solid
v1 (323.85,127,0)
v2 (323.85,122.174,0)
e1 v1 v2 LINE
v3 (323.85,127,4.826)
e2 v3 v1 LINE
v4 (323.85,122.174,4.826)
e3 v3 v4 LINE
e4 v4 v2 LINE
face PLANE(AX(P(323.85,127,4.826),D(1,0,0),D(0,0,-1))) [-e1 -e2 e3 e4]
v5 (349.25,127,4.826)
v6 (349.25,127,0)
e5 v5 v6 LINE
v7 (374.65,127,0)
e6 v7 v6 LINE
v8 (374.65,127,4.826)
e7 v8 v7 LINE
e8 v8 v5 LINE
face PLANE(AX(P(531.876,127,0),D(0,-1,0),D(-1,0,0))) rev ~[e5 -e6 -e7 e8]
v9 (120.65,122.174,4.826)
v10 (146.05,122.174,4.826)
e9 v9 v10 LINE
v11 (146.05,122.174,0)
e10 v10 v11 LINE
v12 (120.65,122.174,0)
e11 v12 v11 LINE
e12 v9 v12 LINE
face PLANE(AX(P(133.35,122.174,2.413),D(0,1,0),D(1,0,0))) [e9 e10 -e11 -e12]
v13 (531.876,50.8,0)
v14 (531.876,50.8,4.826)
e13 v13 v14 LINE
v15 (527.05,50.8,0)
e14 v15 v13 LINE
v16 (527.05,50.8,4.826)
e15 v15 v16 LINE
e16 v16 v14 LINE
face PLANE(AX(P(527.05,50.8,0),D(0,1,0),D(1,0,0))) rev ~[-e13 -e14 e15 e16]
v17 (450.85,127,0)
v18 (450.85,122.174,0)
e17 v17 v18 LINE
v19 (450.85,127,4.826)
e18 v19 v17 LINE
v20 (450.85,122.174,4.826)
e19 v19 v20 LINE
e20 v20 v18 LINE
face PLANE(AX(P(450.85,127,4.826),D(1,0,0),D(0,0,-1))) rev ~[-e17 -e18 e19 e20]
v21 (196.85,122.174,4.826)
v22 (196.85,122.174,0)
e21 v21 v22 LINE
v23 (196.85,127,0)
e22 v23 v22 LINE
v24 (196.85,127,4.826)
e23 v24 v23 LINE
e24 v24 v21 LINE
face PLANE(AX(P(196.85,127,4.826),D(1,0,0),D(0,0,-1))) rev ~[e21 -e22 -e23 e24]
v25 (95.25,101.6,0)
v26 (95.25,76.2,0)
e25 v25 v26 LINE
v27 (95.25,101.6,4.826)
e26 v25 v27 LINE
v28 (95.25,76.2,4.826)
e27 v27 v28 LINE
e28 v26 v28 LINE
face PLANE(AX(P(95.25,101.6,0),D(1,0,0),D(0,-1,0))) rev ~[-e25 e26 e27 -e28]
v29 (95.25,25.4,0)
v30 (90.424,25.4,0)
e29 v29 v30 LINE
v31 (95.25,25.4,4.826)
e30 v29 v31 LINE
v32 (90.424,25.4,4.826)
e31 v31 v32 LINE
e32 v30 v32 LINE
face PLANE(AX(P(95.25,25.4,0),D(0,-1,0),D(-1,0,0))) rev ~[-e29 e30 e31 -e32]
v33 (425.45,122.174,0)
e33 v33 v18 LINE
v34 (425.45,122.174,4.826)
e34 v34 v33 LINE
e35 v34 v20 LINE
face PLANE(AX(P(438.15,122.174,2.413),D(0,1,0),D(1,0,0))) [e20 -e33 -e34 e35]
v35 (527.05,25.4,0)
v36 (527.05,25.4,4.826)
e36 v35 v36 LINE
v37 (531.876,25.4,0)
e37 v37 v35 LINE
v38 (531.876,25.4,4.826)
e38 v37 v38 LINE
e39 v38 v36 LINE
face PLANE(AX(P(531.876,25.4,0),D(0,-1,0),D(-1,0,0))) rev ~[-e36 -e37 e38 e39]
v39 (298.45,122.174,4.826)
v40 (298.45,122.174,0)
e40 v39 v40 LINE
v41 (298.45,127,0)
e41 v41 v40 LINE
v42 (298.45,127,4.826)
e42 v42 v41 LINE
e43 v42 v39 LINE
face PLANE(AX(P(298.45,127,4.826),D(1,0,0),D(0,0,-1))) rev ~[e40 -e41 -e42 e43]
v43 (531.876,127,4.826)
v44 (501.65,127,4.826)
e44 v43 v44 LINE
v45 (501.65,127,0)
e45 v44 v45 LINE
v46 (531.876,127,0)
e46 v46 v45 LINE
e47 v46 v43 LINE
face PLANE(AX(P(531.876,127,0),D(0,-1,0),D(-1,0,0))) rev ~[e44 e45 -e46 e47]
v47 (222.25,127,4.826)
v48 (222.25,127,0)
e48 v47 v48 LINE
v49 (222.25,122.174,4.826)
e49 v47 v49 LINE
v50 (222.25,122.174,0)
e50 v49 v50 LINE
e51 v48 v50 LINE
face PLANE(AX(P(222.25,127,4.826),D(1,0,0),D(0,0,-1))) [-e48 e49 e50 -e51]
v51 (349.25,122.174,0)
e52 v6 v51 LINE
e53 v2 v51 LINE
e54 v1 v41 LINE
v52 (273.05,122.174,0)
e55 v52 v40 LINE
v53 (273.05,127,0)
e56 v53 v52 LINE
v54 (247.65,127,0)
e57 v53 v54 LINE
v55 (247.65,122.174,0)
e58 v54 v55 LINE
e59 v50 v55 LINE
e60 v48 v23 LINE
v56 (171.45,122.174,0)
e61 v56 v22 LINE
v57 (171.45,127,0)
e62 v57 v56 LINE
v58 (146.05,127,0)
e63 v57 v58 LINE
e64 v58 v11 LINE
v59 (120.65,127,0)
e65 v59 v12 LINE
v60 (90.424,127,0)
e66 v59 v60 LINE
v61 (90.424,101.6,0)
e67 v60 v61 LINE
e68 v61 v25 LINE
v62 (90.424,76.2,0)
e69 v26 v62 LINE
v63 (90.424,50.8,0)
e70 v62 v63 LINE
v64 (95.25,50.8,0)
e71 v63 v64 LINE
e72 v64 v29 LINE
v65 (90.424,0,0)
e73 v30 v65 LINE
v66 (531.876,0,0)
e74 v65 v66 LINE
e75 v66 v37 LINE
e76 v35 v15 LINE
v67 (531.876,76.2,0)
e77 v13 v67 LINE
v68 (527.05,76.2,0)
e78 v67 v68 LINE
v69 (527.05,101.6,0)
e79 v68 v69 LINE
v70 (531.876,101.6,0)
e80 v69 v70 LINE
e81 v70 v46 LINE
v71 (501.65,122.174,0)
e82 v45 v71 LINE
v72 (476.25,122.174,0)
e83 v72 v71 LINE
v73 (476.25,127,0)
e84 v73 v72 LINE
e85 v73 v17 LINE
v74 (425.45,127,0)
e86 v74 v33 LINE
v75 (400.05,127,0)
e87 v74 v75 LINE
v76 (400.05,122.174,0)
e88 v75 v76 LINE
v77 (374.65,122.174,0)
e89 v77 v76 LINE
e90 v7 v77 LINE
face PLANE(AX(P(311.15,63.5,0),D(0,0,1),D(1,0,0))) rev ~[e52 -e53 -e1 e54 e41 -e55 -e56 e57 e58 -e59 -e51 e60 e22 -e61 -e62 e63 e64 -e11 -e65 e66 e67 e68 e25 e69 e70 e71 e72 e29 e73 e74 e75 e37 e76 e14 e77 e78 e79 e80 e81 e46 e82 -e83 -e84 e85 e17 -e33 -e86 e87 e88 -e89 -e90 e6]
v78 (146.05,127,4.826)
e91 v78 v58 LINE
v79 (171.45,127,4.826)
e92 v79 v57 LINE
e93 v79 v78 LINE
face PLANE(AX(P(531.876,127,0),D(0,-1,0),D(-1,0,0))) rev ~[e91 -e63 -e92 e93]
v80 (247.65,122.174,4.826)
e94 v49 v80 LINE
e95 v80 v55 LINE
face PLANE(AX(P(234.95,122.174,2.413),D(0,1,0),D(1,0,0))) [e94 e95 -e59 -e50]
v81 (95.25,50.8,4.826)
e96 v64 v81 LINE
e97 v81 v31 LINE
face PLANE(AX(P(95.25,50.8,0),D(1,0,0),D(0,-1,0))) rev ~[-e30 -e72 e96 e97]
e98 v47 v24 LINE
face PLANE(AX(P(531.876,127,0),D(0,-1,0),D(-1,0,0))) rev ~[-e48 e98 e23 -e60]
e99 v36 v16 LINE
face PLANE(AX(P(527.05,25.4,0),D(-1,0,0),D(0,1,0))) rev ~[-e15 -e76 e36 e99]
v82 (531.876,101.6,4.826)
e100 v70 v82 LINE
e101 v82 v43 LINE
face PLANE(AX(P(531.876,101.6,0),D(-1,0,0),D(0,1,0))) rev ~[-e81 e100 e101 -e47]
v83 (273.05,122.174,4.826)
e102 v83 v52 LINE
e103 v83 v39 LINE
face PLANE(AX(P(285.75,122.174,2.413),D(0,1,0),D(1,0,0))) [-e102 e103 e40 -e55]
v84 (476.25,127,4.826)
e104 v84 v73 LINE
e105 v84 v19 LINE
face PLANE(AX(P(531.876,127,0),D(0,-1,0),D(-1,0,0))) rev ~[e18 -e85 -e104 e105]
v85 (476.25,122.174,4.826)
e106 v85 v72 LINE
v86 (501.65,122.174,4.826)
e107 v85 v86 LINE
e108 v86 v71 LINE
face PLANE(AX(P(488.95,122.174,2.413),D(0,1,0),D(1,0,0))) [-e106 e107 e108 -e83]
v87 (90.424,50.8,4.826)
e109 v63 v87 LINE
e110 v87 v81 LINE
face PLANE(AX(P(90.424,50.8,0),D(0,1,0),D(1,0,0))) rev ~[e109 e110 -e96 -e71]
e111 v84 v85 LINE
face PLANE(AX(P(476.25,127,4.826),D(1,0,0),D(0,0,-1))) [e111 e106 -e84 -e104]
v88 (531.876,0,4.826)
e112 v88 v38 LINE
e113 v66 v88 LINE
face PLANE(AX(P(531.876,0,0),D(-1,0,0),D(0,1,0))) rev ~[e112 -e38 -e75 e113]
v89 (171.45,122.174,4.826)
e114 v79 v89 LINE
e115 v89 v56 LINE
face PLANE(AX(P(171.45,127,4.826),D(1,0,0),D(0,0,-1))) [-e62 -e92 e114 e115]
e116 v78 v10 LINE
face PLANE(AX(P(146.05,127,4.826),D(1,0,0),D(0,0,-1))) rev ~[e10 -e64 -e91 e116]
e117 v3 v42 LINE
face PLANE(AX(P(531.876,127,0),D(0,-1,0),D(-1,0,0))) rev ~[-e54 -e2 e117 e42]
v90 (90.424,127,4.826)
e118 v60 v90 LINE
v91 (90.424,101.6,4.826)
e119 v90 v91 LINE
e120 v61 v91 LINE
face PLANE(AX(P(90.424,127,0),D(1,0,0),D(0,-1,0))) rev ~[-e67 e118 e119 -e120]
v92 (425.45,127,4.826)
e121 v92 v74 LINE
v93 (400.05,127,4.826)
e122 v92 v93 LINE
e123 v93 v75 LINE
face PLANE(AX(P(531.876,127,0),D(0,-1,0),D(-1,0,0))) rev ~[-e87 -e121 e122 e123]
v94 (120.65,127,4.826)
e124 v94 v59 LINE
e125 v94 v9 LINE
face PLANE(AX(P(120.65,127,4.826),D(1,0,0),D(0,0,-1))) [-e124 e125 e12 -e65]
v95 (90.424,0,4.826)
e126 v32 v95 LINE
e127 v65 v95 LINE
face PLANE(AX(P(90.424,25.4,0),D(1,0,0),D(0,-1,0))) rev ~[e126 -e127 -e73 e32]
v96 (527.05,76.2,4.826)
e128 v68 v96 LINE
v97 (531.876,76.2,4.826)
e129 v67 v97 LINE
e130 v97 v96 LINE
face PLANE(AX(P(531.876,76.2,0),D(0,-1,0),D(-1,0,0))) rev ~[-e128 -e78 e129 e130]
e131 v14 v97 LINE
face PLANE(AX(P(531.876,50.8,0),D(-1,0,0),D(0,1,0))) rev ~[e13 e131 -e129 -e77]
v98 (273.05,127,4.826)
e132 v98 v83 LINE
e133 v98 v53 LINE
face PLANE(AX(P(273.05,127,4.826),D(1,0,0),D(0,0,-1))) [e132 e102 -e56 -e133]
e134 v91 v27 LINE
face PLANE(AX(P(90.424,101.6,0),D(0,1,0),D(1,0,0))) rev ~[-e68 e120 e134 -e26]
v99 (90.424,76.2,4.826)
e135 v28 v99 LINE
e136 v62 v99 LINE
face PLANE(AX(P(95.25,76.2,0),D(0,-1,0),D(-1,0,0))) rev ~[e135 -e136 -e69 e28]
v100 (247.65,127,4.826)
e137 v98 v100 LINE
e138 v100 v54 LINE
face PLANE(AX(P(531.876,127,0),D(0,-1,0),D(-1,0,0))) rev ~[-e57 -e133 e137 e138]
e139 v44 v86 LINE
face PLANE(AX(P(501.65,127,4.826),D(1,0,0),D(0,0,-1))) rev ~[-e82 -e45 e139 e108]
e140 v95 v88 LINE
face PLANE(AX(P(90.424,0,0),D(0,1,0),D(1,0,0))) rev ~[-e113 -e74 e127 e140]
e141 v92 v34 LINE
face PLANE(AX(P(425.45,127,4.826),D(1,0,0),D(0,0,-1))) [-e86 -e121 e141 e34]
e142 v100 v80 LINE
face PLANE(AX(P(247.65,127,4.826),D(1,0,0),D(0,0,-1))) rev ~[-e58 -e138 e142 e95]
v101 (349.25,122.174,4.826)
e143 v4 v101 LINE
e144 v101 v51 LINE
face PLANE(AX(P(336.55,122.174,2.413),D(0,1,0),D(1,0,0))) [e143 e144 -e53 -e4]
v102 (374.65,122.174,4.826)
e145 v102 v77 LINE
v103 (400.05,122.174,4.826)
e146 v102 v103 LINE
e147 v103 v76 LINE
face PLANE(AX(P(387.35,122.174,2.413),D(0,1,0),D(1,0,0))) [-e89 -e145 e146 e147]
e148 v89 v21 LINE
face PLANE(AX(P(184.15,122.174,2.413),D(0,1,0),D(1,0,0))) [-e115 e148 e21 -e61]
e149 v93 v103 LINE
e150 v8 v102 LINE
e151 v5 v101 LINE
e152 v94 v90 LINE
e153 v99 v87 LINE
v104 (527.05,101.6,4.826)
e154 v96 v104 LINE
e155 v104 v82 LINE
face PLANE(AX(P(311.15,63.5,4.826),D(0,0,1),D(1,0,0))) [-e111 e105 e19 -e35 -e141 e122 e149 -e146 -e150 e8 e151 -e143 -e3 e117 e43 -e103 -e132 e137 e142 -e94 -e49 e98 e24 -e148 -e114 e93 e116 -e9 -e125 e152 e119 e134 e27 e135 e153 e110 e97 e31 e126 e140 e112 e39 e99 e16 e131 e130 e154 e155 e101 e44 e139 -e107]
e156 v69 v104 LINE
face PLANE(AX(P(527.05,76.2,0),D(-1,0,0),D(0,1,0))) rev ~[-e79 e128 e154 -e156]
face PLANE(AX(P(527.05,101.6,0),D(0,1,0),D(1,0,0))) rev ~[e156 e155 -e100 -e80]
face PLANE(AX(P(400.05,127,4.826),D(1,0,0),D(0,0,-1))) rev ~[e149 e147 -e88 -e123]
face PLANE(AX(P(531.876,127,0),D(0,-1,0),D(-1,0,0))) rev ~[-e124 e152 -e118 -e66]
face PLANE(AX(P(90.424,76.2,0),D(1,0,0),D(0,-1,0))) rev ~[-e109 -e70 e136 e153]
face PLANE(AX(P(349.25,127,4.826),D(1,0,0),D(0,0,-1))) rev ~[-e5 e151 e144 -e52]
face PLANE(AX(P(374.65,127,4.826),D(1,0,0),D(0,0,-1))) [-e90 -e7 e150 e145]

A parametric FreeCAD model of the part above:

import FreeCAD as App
import Part
import Sketcher

V = App.Vector
Q = App.Units.Quantity


def add_polygon(sketch, points):
    """Adds a closed chain of lines whose ends are joined by coincident constraints."""
    first, n = sketch.GeometryCount, len(points)
    for a, b in zip(points, points[1:] + points[:1]):
        sketch.addGeometry(Part.LineSegment(App.Vector(*a, 0), App.Vector(*b, 0)), False)
    for i in range(n):
        sketch.addConstraint(Sketcher.Constraint("Coincident", first + i, 2, first + (i + 1) % n, 1))

doc = App.newDocument("Part")
body = doc.addObject("PartDesign::Body", "Body")

sketch1 = body.newObject("Sketcher::SketchObject", "Sketch")
sketch1.AttachmentSupport = (doc.getObject("XY_Plane"), [""])
sketch1.MapMode = "FlatFace"
add_polygon(sketch1, [(95.2, 50.8), (95.2, 25.4), (90.4, 25.4), (90.4, 0), (531.9, 0), (531.9, 25.4), (527, 25.4), (527, 50.8), (531.9, 50.8), (531.9, 76.2), (527, 76.2), (527, 101.6), (531.9, 101.6), (531.9, 127), (90.4, 127), (90.4, 101.6), (95.2, 101.6), (95.2, 76.2), (90.4, 76.2), (90.4, 50.8)])
sketch1.addConstraint([
    Sketcher.Constraint("Vertical", 0),
    Sketcher.Constraint("Horizontal", 1),
    Sketcher.Constraint("Vertical", 2),
    Sketcher.Constraint("Horizontal", 3),
    Sketcher.Constraint("Vertical", 4),
    Sketcher.Constraint("Horizontal", 5),
    Sketcher.Constraint("Vertical", 6),
    Sketcher.Constraint("Horizontal", 7),
    Sketcher.Constraint("Vertical", 8),
    Sketcher.Constraint("Horizontal", 9),
    Sketcher.Constraint("Vertical", 10),
    Sketcher.Constraint("Horizontal", 11),
    Sketcher.Constraint("Vertical", 12),
    Sketcher.Constraint("Horizontal", 13),
    Sketcher.Constraint("Vertical", 14),
    Sketcher.Constraint("Horizontal", 15),
    Sketcher.Constraint("Vertical", 16),
    Sketcher.Constraint("Horizontal", 17),
    Sketcher.Constraint("Vertical", 18),
    Sketcher.Constraint("Horizontal", 19),
    Sketcher.Constraint("PointOnObject", 2, 2, -1),
    Sketcher.Constraint("Horizontal", 1, 2, 4, 2),
    Sketcher.Constraint("Horizontal", 11, 2, 14, 2),
    Sketcher.Constraint("Horizontal", 9, 2, 16, 2),
    Sketcher.Constraint("Horizontal", 7, 2, 18, 2),
    Sketcher.Constraint("Vertical", 4, 2, 7, 2),
    Sketcher.Constraint("Vertical", 6, 2, 9, 2),
    Sketcher.Constraint("Vertical", 8, 2, 11, 2),
    Sketcher.Constraint("Vertical", 2, 2, 13, 2),
    Sketcher.Constraint("Vertical", 0, 2, 15, 2),
    Sketcher.Constraint("Vertical", 14, 2, 17, 2),
    Sketcher.Constraint("Equal", 1, 5),
    Sketcher.Constraint("Equal", 0, 2),
    Sketcher.Constraint("Equal", 6, 8),
    Sketcher.Constraint("Equal", 8, 10),
    Sketcher.Constraint("Equal", 10, 12),
    Sketcher.Constraint("DistanceY", 0, 2, 0, 1, Q("1 in")),
    Sketcher.Constraint("DistanceX", 0, 2, 5, 2, Q("17 in")),
    Sketcher.Constraint("DistanceX", 1, 2, 1, 1, Q("0.19 in")),
    Sketcher.Constraint("DistanceX", -1, 1, 0, 2, Q("3.75 in")),
])
pad1 = body.newObject("PartDesign::Pad", "Pad")
pad1.Profile = sketch1
pad1.Length = Q("0.19 in")

sketch2 = body.newObject("Sketcher::SketchObject", "Sketch001")
sketch2.AttachmentSupport = (doc.getObject("XZ_Plane"), [""])
sketch2.MapMode = "FlatFace"
sketch2.AttachmentOffset = App.Placement(V(0, 0, -5 * 25.4), App.Rotation())
add_polygon(sketch2, [(120.7, 0), (120.7, 4.8), (146.1, 4.8), (146.1, 0)])
add_polygon(sketch2, [(171.4, 0), (171.4, 4.8), (196.8, 4.8), (196.8, 0)])
add_polygon(sketch2, [(222.2, 0), (222.2, 4.8), (247.7, 4.8), (247.7, 0)])
add_polygon(sketch2, [(273.1, 0), (273.1, 4.8), (298.4, 4.8), (298.4, 0)])
add_polygon(sketch2, [(323.9, 0), (323.9, 4.8), (349.2, 4.8), (349.2, 0)])
add_polygon(sketch2, [(374.6, 0), (374.6, 4.8), (400.1, 4.8), (400.1, 0)])
add_polygon(sketch2, [(425.4, 0), (425.4, 4.8), (450.9, 4.8), (450.9, 0)])
add_polygon(sketch2, [(476.2, 0), (476.2, 4.8), (501.6, 4.8), (501.6, 0)])
sketch2.addConstraint([
    Sketcher.Constraint("Vertical", 0),
    Sketcher.Constraint("Horizontal", 1),
    Sketcher.Constraint("Vertical", 2),
    Sketcher.Constraint("Horizontal", 3),
    Sketcher.Constraint("Vertical", 4),
    Sketcher.Constraint("Horizontal", 5),
    Sketcher.Constraint("Vertical", 6),
    Sketcher.Constraint("Horizontal", 7),
    Sketcher.Constraint("Vertical", 8),
    Sketcher.Constraint("Horizontal", 9),
    Sketcher.Constraint("Vertical", 10),
    Sketcher.Constraint("Horizontal", 11),
    Sketcher.Constraint("Vertical", 12),
    Sketcher.Constraint("Horizontal", 13),
    Sketcher.Constraint("Vertical", 14),
    Sketcher.Constraint("Horizontal", 15),
    Sketcher.Constraint("Vertical", 16),
    Sketcher.Constraint("Horizontal", 17),
    Sketcher.Constraint("Vertical", 18),
    Sketcher.Constraint("Horizontal", 19),
    Sketcher.Constraint("Vertical", 20),
    Sketcher.Constraint("Horizontal", 21),
    Sketcher.Constraint("Vertical", 22),
    Sketcher.Constraint("Horizontal", 23),
    Sketcher.Constraint("Vertical", 24),
    Sketcher.Constraint("Horizontal", 25),
    Sketcher.Constraint("Vertical", 26),
    Sketcher.Constraint("Horizontal", 27),
    Sketcher.Constraint("Vertical", 28),
    Sketcher.Constraint("Horizontal", 29),
    Sketcher.Constraint("Vertical", 30),
    Sketcher.Constraint("Horizontal", 31),
    Sketcher.Constraint("PointOnObject", 2, 2, -1),
    Sketcher.Constraint("PointOnObject", 6, 2, -1),
    Sketcher.Constraint("PointOnObject", 10, 2, -1),
    Sketcher.Constraint("PointOnObject", 14, 2, -1),
    Sketcher.Constraint("PointOnObject", 18, 2, -1),
    Sketcher.Constraint("PointOnObject", 22, 2, -1),
    Sketcher.Constraint("PointOnObject", 26, 2, -1),
    Sketcher.Constraint("PointOnObject", 30, 2, -1),
    Sketcher.Constraint("Horizontal", 1, 2, 4, 2),
    Sketcher.Constraint("Horizontal", 5, 2, 8, 2),
    Sketcher.Constraint("Horizontal", 9, 2, 12, 2),
    Sketcher.Constraint("Horizontal", 13, 2, 16, 2),
    Sketcher.Constraint("Horizontal", 17, 2, 20, 2),
    Sketcher.Constraint("Horizontal", 21, 2, 24, 2),
    Sketcher.Constraint("Horizontal", 25, 2, 28, 2),
    Sketcher.Constraint("Equal", 3, 5),
    Sketcher.Constraint("Equal", 7, 9),
    Sketcher.Constraint("Equal", 11, 13),
    Sketcher.Constraint("Equal", 15, 17),
    Sketcher.Constraint("Equal", 19, 21),
    Sketcher.Constraint("Equal", 23, 25),
    Sketcher.Constraint("Equal", 27, 29),
    Sketcher.Constraint("DistanceX", 1, 1, 1, 2, Q("1 in")),
    Sketcher.Constraint("DistanceX", 1, 2, 4, 2, Q("1 in")),
    Sketcher.Constraint("DistanceX", 5, 2, 8, 2, Q("1 in")),
    Sketcher.Constraint("DistanceX", 9, 2, 12, 2, Q("1 in")),
    Sketcher.Constraint("DistanceX", 13, 2, 16, 2, Q("1 in")),
    Sketcher.Constraint("DistanceX", 17, 2, 20, 2, Q("1 in")),
    Sketcher.Constraint("DistanceX", 21, 2, 24, 2, Q("1 in")),
    Sketcher.Constraint("DistanceX", 25, 2, 28, 2, Q("1 in")),
    Sketcher.Constraint("DistanceY", 0, 1, 0, 2, Q("0.19 in")),
    Sketcher.Constraint("DistanceX", -1, 1, 0, 2, Q("4.75 in")),
])
pocket1 = body.newObject("PartDesign::Pocket", "Pocket")
pocket1.Profile = sketch2
pocket1.Length = Q("0.19 in")
pocket1.Reversed = True

doc.recompute()
